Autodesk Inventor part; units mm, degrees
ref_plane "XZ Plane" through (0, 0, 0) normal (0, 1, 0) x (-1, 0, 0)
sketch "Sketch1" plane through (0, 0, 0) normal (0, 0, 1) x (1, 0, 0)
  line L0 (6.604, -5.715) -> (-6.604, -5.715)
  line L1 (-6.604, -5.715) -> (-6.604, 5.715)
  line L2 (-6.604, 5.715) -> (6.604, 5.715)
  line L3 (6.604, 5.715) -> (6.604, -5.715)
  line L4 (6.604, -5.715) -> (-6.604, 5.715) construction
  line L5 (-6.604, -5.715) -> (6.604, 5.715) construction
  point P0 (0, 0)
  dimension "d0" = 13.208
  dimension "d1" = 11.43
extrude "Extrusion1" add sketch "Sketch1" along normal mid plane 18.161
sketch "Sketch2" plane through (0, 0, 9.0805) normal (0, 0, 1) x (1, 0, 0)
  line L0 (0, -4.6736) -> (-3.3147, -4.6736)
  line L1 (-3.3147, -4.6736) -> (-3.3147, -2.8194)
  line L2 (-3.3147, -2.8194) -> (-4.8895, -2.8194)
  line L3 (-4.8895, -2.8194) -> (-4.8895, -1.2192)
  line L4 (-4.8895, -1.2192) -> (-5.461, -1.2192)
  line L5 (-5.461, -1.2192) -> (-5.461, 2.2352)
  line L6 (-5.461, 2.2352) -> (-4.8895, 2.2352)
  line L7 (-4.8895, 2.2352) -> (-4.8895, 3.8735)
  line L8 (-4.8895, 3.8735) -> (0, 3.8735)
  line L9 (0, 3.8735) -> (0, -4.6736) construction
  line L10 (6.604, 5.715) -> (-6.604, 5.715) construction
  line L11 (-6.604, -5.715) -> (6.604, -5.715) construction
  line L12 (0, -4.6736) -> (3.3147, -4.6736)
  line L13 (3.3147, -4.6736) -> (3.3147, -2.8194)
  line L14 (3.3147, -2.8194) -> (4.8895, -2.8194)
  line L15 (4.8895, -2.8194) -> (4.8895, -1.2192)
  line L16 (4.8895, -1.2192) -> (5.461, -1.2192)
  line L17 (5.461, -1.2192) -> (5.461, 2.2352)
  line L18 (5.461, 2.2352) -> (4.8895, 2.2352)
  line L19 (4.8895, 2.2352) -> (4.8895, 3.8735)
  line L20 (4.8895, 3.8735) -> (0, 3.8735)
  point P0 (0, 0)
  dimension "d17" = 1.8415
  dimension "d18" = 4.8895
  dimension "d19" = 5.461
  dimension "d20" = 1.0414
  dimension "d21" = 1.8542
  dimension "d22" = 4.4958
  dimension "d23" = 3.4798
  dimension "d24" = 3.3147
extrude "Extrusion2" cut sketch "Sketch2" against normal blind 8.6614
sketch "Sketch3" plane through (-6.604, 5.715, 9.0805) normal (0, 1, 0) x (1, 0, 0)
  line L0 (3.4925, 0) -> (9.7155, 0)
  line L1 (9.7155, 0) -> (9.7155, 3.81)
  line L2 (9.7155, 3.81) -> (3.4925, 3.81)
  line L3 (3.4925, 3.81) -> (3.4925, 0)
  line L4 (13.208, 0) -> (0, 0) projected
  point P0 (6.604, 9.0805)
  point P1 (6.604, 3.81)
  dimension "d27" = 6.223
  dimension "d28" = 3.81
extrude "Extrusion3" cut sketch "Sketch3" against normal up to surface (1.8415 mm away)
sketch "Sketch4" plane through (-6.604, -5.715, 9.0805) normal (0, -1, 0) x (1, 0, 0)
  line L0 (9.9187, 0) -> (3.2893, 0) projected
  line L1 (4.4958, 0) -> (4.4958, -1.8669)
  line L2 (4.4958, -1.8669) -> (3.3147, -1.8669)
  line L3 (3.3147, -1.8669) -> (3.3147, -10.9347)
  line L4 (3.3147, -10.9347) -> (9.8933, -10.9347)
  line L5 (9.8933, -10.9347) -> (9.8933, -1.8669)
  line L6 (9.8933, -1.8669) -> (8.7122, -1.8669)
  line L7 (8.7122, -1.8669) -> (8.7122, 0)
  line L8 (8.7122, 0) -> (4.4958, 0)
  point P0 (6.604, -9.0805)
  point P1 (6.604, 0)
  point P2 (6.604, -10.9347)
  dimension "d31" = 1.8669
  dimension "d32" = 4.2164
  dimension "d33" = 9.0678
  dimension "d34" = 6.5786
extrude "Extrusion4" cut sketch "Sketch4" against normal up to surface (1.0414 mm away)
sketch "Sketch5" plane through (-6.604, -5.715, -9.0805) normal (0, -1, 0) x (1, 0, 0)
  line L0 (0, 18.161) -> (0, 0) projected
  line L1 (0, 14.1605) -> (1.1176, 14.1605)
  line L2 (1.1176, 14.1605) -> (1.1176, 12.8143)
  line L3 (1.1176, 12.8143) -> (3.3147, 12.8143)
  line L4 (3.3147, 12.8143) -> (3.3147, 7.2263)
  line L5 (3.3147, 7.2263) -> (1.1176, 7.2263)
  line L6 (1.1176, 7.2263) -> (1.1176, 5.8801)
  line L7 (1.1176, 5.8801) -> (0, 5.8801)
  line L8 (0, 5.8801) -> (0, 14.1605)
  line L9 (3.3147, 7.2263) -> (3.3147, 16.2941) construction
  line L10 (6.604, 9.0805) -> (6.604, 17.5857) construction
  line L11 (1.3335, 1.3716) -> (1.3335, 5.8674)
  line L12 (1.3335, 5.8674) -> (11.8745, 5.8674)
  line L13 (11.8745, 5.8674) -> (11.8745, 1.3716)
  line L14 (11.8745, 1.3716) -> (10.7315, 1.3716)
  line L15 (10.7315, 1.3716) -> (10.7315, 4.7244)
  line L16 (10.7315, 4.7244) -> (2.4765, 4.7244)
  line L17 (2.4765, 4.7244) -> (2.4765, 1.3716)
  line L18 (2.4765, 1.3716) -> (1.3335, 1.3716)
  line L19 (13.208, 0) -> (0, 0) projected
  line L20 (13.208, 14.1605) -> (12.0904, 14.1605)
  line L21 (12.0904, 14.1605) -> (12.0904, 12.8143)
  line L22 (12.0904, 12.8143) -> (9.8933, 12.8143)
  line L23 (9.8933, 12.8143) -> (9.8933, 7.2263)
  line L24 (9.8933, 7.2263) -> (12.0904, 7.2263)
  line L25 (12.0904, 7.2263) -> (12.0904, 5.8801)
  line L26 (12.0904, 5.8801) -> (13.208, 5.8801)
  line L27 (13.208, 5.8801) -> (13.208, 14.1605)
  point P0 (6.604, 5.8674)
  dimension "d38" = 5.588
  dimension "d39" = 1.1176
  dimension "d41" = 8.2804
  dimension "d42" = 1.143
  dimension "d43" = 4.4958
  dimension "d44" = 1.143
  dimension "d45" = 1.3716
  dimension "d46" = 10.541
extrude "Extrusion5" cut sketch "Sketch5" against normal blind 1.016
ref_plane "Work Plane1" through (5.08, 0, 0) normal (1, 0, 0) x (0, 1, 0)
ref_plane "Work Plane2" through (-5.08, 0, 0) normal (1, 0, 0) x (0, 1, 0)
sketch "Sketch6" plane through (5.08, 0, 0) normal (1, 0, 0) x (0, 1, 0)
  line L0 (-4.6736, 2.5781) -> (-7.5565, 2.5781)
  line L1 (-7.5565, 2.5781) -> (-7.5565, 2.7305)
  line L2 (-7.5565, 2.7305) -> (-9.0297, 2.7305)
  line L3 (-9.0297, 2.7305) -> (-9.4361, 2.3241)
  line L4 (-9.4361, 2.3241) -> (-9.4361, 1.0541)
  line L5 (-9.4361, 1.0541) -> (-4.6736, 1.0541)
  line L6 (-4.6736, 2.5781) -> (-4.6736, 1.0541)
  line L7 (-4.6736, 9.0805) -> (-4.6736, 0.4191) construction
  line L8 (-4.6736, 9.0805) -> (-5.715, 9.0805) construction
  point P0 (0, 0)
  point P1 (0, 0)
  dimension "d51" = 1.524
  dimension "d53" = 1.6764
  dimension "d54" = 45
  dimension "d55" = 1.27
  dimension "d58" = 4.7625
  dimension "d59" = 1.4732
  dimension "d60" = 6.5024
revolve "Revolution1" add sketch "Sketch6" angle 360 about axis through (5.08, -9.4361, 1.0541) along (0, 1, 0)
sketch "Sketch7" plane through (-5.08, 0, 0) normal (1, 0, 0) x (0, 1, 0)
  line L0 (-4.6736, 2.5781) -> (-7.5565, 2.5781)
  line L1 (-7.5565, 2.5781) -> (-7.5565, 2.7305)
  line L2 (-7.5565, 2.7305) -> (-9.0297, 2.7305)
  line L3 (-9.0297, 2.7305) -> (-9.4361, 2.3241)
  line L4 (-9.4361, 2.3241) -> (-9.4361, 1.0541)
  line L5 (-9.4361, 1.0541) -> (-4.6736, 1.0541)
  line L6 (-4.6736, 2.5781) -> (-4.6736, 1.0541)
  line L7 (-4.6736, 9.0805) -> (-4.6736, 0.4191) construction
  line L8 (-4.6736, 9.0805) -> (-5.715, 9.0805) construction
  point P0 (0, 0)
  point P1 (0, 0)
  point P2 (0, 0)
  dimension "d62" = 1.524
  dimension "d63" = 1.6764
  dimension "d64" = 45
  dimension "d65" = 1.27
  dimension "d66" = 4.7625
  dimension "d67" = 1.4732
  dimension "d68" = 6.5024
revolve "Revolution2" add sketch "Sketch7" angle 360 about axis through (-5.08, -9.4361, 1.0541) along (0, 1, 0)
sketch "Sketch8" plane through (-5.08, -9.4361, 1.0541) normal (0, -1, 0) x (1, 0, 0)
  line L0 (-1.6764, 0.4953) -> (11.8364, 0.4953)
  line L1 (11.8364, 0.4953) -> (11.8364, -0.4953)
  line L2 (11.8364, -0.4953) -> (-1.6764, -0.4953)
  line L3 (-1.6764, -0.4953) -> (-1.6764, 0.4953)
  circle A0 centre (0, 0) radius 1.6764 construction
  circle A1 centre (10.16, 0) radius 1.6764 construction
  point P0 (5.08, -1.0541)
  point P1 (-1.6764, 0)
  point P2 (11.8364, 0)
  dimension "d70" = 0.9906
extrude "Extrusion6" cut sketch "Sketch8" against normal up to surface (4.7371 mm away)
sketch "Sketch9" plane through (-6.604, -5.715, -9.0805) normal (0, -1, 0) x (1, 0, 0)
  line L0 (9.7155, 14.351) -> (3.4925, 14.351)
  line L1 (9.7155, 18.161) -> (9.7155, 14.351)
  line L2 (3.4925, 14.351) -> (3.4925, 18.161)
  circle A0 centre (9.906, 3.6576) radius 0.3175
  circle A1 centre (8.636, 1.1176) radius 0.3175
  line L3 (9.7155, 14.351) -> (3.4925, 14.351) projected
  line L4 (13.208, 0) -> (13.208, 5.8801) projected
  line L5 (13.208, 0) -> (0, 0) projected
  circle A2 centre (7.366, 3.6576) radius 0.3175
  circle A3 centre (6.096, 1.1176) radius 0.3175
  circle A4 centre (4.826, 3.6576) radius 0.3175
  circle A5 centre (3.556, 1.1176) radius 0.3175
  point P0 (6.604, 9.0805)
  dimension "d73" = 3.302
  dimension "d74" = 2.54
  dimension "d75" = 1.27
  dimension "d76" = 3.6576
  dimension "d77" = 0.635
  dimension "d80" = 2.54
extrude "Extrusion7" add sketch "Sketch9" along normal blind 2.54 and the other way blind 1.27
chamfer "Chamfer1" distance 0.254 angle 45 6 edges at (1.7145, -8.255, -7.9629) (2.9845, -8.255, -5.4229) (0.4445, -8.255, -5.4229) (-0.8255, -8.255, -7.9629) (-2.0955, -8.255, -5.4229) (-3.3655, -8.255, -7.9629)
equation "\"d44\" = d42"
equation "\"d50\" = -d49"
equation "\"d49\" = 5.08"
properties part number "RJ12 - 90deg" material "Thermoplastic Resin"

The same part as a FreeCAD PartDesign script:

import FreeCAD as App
import Part
import Sketcher
Q = App.Units.Quantity


def edges_at(feature, points):
    """Names of the edges that pass closest to the given points."""
    edges = feature.Shape.Edges
    near = lambda p: min(range(len(edges)), key=lambda i: edges[i].distToShape(Part.Vertex(*p))[0])
    return sorted({f"Edge{near(p) + 1}" for p in points})


def add_polygon(sketch, points):
    """Adds a closed chain of lines whose ends are joined by coincident constraints."""
    first, n = sketch.GeometryCount, len(points)
    for a, b in zip(points, points[1:] + points[:1]):
        sketch.addGeometry(Part.LineSegment(App.Vector(*a, 0), App.Vector(*b, 0)), False)
    for i in range(n):
        sketch.addConstraint(Sketcher.Constraint("Coincident", first + i, 2, first + (i + 1) % n, 1))

doc = App.newDocument("Part")
body = doc.addObject("PartDesign::Body", "Body")

# Sketch on XY plane
sketch1 = body.newObject("Sketcher::SketchObject", "Sketch")
sketch1.AttachmentSupport = (doc.getObject("XY_Plane"), [""])
sketch1.MapMode = "FlatFace"
add_polygon(sketch1, [(-6.604, -5.715), (6.604, -5.715), (6.604, 5.715), (-6.604, 5.715)])  # lines 0-3
sketch1.addConstraint(Sketcher.Constraint("Horizontal", 0))
sketch1.addConstraint(Sketcher.Constraint("Vertical", 1))
sketch1.addConstraint(Sketcher.Constraint("Horizontal", 2))
sketch1.addConstraint(Sketcher.Constraint("Vertical", 3))
sketch1.addConstraint(Sketcher.Constraint("Symmetric", 0, 2, 2, 2, -1, 1))
sketch1.addConstraint(Sketcher.Constraint("DistanceX", 0, 1, 0, 2, Q("0.52 in")))
sketch1.addConstraint(Sketcher.Constraint("DistanceY", 1, 1, 1, 2, Q("0.45 in")))
pad1 = body.newObject("PartDesign::Pad", "Pad")
pad1.Profile = sketch1
pad1.Length = Q("0.715 in")
pad1.Midplane = True

# Sketch on XY plane
sketch2 = body.newObject("Sketcher::SketchObject", "Sketch001")
sketch2.AttachmentSupport = (doc.getObject("XY_Plane"), [""])
sketch2.MapMode = "FlatFace"
sketch2.AttachmentOffset = App.Placement(App.Vector(0, 0, 0.3575 * 25.4), App.Rotation())
add_polygon(sketch2, [(-3.3147, -4.6736), (3.3147, -4.6736), (3.3147, -2.8194), (4.8895, -2.8194), (4.8895, -1.2192), (5.461, -1.2192), (5.461, 2.2352), (4.8895, 2.2352), (4.8895, 3.8735), (-4.8895, 3.8735), (-4.8895, 2.2352), (-5.461, 2.2352), (-5.461, -1.2192), (-4.8895, -1.2192), (-4.8895, -2.8194), (-3.3147, -2.8194)])  # lines 0-15
sketch2.addConstraint(Sketcher.Constraint("Horizontal", 0))
sketch2.addConstraint(Sketcher.Constraint("Vertical", 1))
sketch2.addConstraint(Sketcher.Constraint("Horizontal", 2))
sketch2.addConstraint(Sketcher.Constraint("Vertical", 3))
sketch2.addConstraint(Sketcher.Constraint("Horizontal", 4))
sketch2.addConstraint(Sketcher.Constraint("Vertical", 5))
sketch2.addConstraint(Sketcher.Constraint("Horizontal", 6))
sketch2.addConstraint(Sketcher.Constraint("Vertical", 7))
sketch2.addConstraint(Sketcher.Constraint("Horizontal", 8))
sketch2.addConstraint(Sketcher.Constraint("Vertical", 9))
sketch2.addConstraint(Sketcher.Constraint("Horizontal", 10))
sketch2.addConstraint(Sketcher.Constraint("Vertical", 11))
sketch2.addConstraint(Sketcher.Constraint("Horizontal", 12))
sketch2.addConstraint(Sketcher.Constraint("Vertical", 13))
sketch2.addConstraint(Sketcher.Constraint("Horizontal", 14))
sketch2.addConstraint(Sketcher.Constraint("Vertical", 15))
sketch2.addConstraint(Sketcher.Constraint("Symmetric", 6, 2, 9, 2, -2))
sketch2.addConstraint(Sketcher.Constraint("Symmetric", 4, 2, 11, 2, -2))
sketch2.addConstraint(Sketcher.Constraint("Symmetric", 2, 2, 13, 2, -2))
sketch2.addConstraint(Sketcher.Constraint("Vertical", 3, 2, 6, 2))
sketch2.addConstraint(Sketcher.Constraint("Equal", 2, 14))
sketch2.addConstraint(Sketcher.Constraint("DistanceY", 1, 1, 1, 2, Q("0.073 in")))
sketch2.addConstraint(Sketcher.Constraint("DistanceX", -1, 1, 4, 2, Q("0.215 in")))
sketch2.addConstraint(Sketcher.Constraint("DistanceX", -1, 1, 0, 2, Q("0.1305 in")))
sketch2.addConstraint(Sketcher.Constraint("DistanceX", -1, 1, 2, 2, Q("0.1925 in")))
sketch2.addConstraint(Sketcher.Constraint("DistanceY", 3, 1, 3, 2, Q("0.063 in")))
sketch2.addConstraint(Sketcher.Constraint("DistanceY", 5, 1, 5, 2, Q("0.136 in")))
sketch2.addConstraint(Sketcher.Constraint("DistanceY", 7, 1, 7, 2, Q("0.0645 in")))
sketch2.addConstraint(Sketcher.Constraint("DistanceY", 0, 2, -1, 1, Q("0.184 in")))
pocket1 = body.newObject("PartDesign::Pocket", "Pocket")
pocket1.Profile = sketch2
pocket1.Length = Q("0.341 in")

# Sketch on XZ plane
sketch3 = body.newObject("Sketcher::SketchObject", "Sketch002")
sketch3.AttachmentSupport = (doc.getObject("XZ_Plane"), [""])
sketch3.MapMode = "FlatFace"
sketch3.AttachmentOffset = App.Placement(App.Vector(0, 0, -0.225 * 25.4), App.Rotation())
add_polygon(sketch3, [(-3.1115, 5.2705), (-3.1115, 9.0805), (3.1115, 9.0805), (3.1115, 5.2705)])  # lines 0-3
sketch3.addConstraint(Sketcher.Constraint("Vertical", 0))
sketch3.addConstraint(Sketcher.Constraint("Horizontal", 1))
sketch3.addConstraint(Sketcher.Constraint("Vertical", 2))
sketch3.addConstraint(Sketcher.Constraint("Horizontal", 3))
sketch3.addConstraint(Sketcher.Constraint("DistanceY", 0, 1, 0, 2, Q("0.15 in")))
sketch3.addConstraint(Sketcher.Constraint("DistanceX", 1, 1, 1, 2, Q("0.245 in")))
sketch3.addConstraint(Sketcher.Constraint("DistanceX", 0, 2, -1, 1, Q("0.1225 in")))
sketch3.addConstraint(Sketcher.Constraint("DistanceY", -1, 1, 0, 2, Q("0.3575 in")))
pocket2 = body.newObject("PartDesign::Pocket", "Pocket001")
pocket2.Profile = sketch3
pocket2.Length = Q("0.0725 in")
pocket2.Reversed = True

# Sketch on XZ plane
sketch4 = body.newObject("Sketcher::SketchObject", "Sketch003")
sketch4.AttachmentSupport = (doc.getObject("XZ_Plane"), [""])
sketch4.MapMode = "FlatFace"
sketch4.AttachmentOffset = App.Placement(App.Vector(0, 0, 0.225 * 25.4), App.Rotation())
add_polygon(sketch4, [(2.1082, 7.2136), (2.1082, 9.0805), (-2.1082, 9.0805), (-2.1082, 7.2136), (-3.2893, 7.2136), (-3.2893, -1.8542), (3.2893, -1.8542), (3.2893, 7.2136)])  # lines 0-7
sketch4.addConstraint(Sketcher.Constraint("Vertical", 0))
sketch4.addConstraint(Sketcher.Constraint("Horizontal", 1))
sketch4.addConstraint(Sketcher.Constraint("Vertical", 2))
sketch4.addConstraint(Sketcher.Constraint("Horizontal", 3))
sketch4.addConstraint(Sketcher.Constraint("Vertical", 4))
sketch4.addConstraint(Sketcher.Constraint("Horizontal", 5))
sketch4.addConstraint(Sketcher.Constraint("Vertical", 6))
sketch4.addConstraint(Sketcher.Constraint("Horizontal", 7))
sketch4.addConstraint(Sketcher.Constraint("Symmetric", 3, 2, 6, 2, -2))
sketch4.addConstraint(Sketcher.Constraint("Equal", 3, 7))
sketch4.addConstraint(Sketcher.Constraint("DistanceX", 1, 2, 1, 1, Q("0.166 in")))
sketch4.addConstraint(Sketcher.Constraint("DistanceX", 5, 1, 5, 2, Q("0.259 in")))
sketch4.addConstraint(Sketcher.Constraint("DistanceY", 4, 2, 4, 1, Q("0.357 in")))
sketch4.addConstraint(Sketcher.Constraint("DistanceY", 0, 1, 0, 2, Q("0.0735 in")))
sketch4.addConstraint(Sketcher.Constraint("DistanceY", -1, 1, 2, 2, Q("0.284 in")))
pocket3 = body.newObject("PartDesign::Pocket", "Pocket002")
pocket3.Profile = sketch4
pocket3.Length = Q("0.041 in")

# Sketch on XZ plane
sketch5 = body.newObject("Sketcher::SketchObject", "Sketch004")
sketch5.AttachmentSupport = (doc.getObject("XZ_Plane"), [""])
sketch5.MapMode = "FlatFace"
sketch5.AttachmentOffset = App.Placement(App.Vector(0, 0, 0.225 * 25.4), App.Rotation())
add_polygon(sketch5, [(-5.4864, 5.08), (-6.604, 5.08), (-6.604, -3.2004), (-5.4864, -3.2004), (-5.4864, -1.8542), (-3.2893, -1.8542), (-3.2893, 3.7338), (-5.4864, 3.7338)])  # lines 0-7
add_polygon(sketch5, [(-5.2705, -3.2131), (-5.2705, -7.7089), (-4.1275, -7.7089), (-4.1275, -4.3561), (4.1275, -4.3561), (4.1275, -7.7089), (5.2705, -7.7089), (5.2705, -3.2131)])  # lines 8-15
add_polygon(sketch5, [(6.604, -3.2004), (6.604, 5.08), (5.4864, 5.08), (5.4864, 3.7338), (3.2893, 3.7338), (3.2893, -1.8542), (5.4864, -1.8542), (5.4864, -3.2004)])  # lines 16-23
sketch5.addConstraint(Sketcher.Constraint("Horizontal", 0))
sketch5.addConstraint(Sketcher.Constraint("Vertical", 1))
sketch5.addConstraint(Sketcher.Constraint("Horizontal", 2))
sketch5.addConstraint(Sketcher.Constraint("Vertical", 3))
sketch5.addConstraint(Sketcher.Constraint("Horizontal", 4))
sketch5.addConstraint(Sketcher.Constraint("Vertical", 5))
sketch5.addConstraint(Sketcher.Constraint("Horizontal", 6))
sketch5.addConstraint(Sketcher.Constraint("Vertical", 7))
sketch5.addConstraint(Sketcher.Constraint("Vertical", 8))
sketch5.addConstraint(Sketcher.Constraint("Horizontal", 9))
sketch5.addConstraint(Sketcher.Constraint("Vertical", 10))
sketch5.addConstraint(Sketcher.Constraint("Horizontal", 11))
sketch5.addConstraint(Sketcher.Constraint("Vertical", 12))
sketch5.addConstraint(Sketcher.Constraint("Horizontal", 13))
sketch5.addConstraint(Sketcher.Constraint("Vertical", 14))
sketch5.addConstraint(Sketcher.Constraint("Horizontal", 15))
sketch5.addConstraint(Sketcher.Constraint("Vertical", 16))
sketch5.addConstraint(Sketcher.Constraint("Horizontal", 17))
sketch5.addConstraint(Sketcher.Constraint("Vertical", 18))
sketch5.addConstraint(Sketcher.Constraint("Horizontal", 19))
sketch5.addConstraint(Sketcher.Constraint("Vertical", 20))
sketch5.addConstraint(Sketcher.Constraint("Horizontal", 21))
sketch5.addConstraint(Sketcher.Constraint("Vertical", 22))
sketch5.addConstraint(Sketcher.Constraint("Horizontal", 23))
sketch5.addConstraint(Sketcher.Constraint("Symmetric", 9, 2, 12, 2, -2))
sketch5.addConstraint(Sketcher.Constraint("Symmetric", 0, 2, 16, 2, -2))
sketch5.addConstraint(Sketcher.Constraint("Symmetric", 6, 2, 18, 2, -2))
sketch5.addConstraint(Sketcher.Constraint("Symmetric", 4, 2, 20, 2, -2))
sketch5.addConstraint(Sketcher.Constraint("Symmetric", 2, 2, 22, 2, -2))
sketch5.addConstraint(Sketcher.Constraint("Vertical", 3, 2, 6, 2))
sketch5.addConstraint(Sketcher.Constraint("Equal", 9, 13))
sketch5.addConstraint(Sketcher.Constraint("Equal", 3, 7))
sketch5.addConstraint(Sketcher.Constraint("DistanceY", 5, 1, 5, 2, Q("0.22 in")))
sketch5.addConstraint(Sketcher.Constraint("DistanceX", 0, 2, 0, 1, Q("0.044 in")))
sketch5.addConstraint(Sketcher.Constraint("DistanceX", 9, 1, 9, 2, Q("0.045 in")))
sketch5.addConstraint(Sketcher.Constraint("DistanceX", 15, 2, 15, 1, Q("0.415 in")))
sketch5.addConstraint(Sketcher.Constraint("DistanceY", 1, 2, 1, 1, Q("0.326 in")))
sketch5.addConstraint(Sketcher.Constraint("DistanceY", 8, 2, 8, 1, Q("0.177 in")))
sketch5.addConstraint(Sketcher.Constraint("DistanceY", 11, 2, 14, 2, Q("0.045 in")))
sketch5.addConstraint(Sketcher.Constraint("DistanceY", -1, 1, 0, 2, Q("0.2 in")))
sketch5.addConstraint(Sketcher.Constraint("DistanceX", 0, 2, -1, 1, Q("0.26 in")))
sketch5.addConstraint(Sketcher.Constraint("DistanceX", 4, 1, 4, 2, Q("0.0865 in")))
sketch5.addConstraint(Sketcher.Constraint("DistanceY", 8, 2, -1, 1, Q("0.3035 in")))
pocket4 = body.newObject("PartDesign::Pocket", "Pocket003")
pocket4.Profile = sketch5
pocket4.Length = Q("0.04 in")

# Sketch on YZ plane
sketch6 = body.newObject("Sketcher::SketchObject", "Sketch005")
sketch6.AttachmentSupport = (doc.getObject("YZ_Plane"), [""])
sketch6.MapMode = "FlatFace"
sketch6.AttachmentOffset = App.Placement(App.Vector(0, 0, 0.2 * 25.4), App.Rotation())
add_polygon(sketch6, [(-4.6736, 1.0541), (-4.6736, 2.5781), (-7.5565, 2.5781), (-7.5565, 2.7305), (-9.0297, 2.7305), (-9.4361, 2.3241), (-9.4361, 1.0541)])  # lines 0-6
sketch6.addGeometry(Part.LineSegment(App.Vector(-9.4361, 1.0541, 0), App.Vector(-4.6736, 1.0541, 0)), True)  # axis
sketch6.addConstraint(Sketcher.Constraint("Vertical", 0))
sketch6.addConstraint(Sketcher.Constraint("Horizontal", 1))
sketch6.addConstraint(Sketcher.Constraint("Vertical", 2))
sketch6.addConstraint(Sketcher.Constraint("Horizontal", 3))
sketch6.addConstraint(Sketcher.Constraint("Vertical", 5))
sketch6.addConstraint(Sketcher.Constraint("Horizontal", 6))
sketch6.addConstraint(Sketcher.Constraint("Horizontal", 7))
sketch6.addConstraint(Sketcher.Constraint("Coincident", 7, 1, 5, 2))
sketch6.addConstraint(Sketcher.Constraint("Vertical", 0, 2, 7, 2))
sketch6.addConstraint(Sketcher.Constraint("DistanceY", 0, 1, 0, 2, Q("0.06 in")))
sketch6.addConstraint(Sketcher.Constraint("DistanceY", 5, 2, 5, 1, Q("0.05 in")))
sketch6.addConstraint(Sketcher.Constraint("DistanceX", 3, 2, 3, 1, Q("0.058 in")))
sketch6.addConstraint(Sketcher.Constraint("DistanceX", 6, 1, 6, 2, Q("0.1875 in")))
sketch6.addConstraint(Sketcher.Constraint("Angle", 4, Q("-135 deg")))
sketch6.addConstraint(Sketcher.Constraint("DistanceY", 5, 2, 3, 2, Q("0.066 in")))
sketch6.addConstraint(Sketcher.Constraint("DistanceX", 0, 2, -1, 1, Q("0.184 in")))
sketch6.addConstraint(Sketcher.Constraint("DistanceY", -1, 1, 0, 2, Q("0.1015 in")))
revolution = body.newObject("PartDesign::Revolution", "Revolution")
revolution.Profile = sketch6
revolution.ReferenceAxis = (sketch6, ["Axis0"])
revolution.Angle = 360

# Sketch on YZ plane
sketch7 = body.newObject("Sketcher::SketchObject", "Sketch006")
sketch7.AttachmentSupport = (doc.getObject("YZ_Plane"), [""])
sketch7.MapMode = "FlatFace"
sketch7.AttachmentOffset = App.Placement(App.Vector(0, 0, -0.2 * 25.4), App.Rotation())
add_polygon(sketch7, [(-4.6736, 1.0541), (-4.6736, 2.5781), (-7.5565, 2.5781), (-7.5565, 2.7305), (-9.0297, 2.7305), (-9.4361, 2.3241), (-9.4361, 1.0541)])  # lines 0-6
sketch7.addGeometry(Part.LineSegment(App.Vector(-9.4361, 1.0541, 0), App.Vector(-4.6736, 1.0541, 0)), True)  # axis
sketch7.addConstraint(Sketcher.Constraint("Vertical", 0))
sketch7.addConstraint(Sketcher.Constraint("Horizontal", 1))
sketch7.addConstraint(Sketcher.Constraint("Vertical", 2))
sketch7.addConstraint(Sketcher.Constraint("Horizontal", 3))
sketch7.addConstraint(Sketcher.Constraint("Vertical", 5))
sketch7.addConstraint(Sketcher.Constraint("Horizontal", 6))
sketch7.addConstraint(Sketcher.Constraint("Horizontal", 7))
sketch7.addConstraint(Sketcher.Constraint("Coincident", 7, 1, 5, 2))
sketch7.addConstraint(Sketcher.Constraint("Vertical", 0, 2, 7, 2))
sketch7.addConstraint(Sketcher.Constraint("DistanceY", 0, 1, 0, 2, Q("0.06 in")))
sketch7.addConstraint(Sketcher.Constraint("DistanceY", 5, 2, 5, 1, Q("0.05 in")))
sketch7.addConstraint(Sketcher.Constraint("DistanceX", 3, 2, 3, 1, Q("0.058 in")))
sketch7.addConstraint(Sketcher.Constraint("DistanceX", 6, 1, 6, 2, Q("0.1875 in")))
sketch7.addConstraint(Sketcher.Constraint("Angle", 4, Q("-135 deg")))
sketch7.addConstraint(Sketcher.Constraint("DistanceY", 5, 2, 3, 2, Q("0.066 in")))
sketch7.addConstraint(Sketcher.Constraint("DistanceX", 0, 2, -1, 1, Q("0.184 in")))
sketch7.addConstraint(Sketcher.Constraint("DistanceY", -1, 1, 0, 2, Q("0.1015 in")))
revolution2 = body.newObject("PartDesign::Revolution", "Revolution001")
revolution2.Profile = sketch7
revolution2.ReferenceAxis = (sketch7, ["Axis0"])
revolution2.Angle = 360

# Sketch on XZ plane
sketch8 = body.newObject("Sketcher::SketchObject", "Sketch007")
sketch8.AttachmentSupport = (doc.getObject("XZ_Plane"), [""])
sketch8.MapMode = "FlatFace"
sketch8.AttachmentOffset = App.Placement(App.Vector(0, 0, 0.3715 * 25.4), App.Rotation())
add_polygon(sketch8, [(6.7564, 1.5494), (-6.7564, 1.5494), (-6.7564, 0.5588), (6.7564, 0.5588)])  # lines 0-3
sketch8.addConstraint(Sketcher.Constraint("Horizontal", 0))
sketch8.addConstraint(Sketcher.Constraint("Vertical", 1))
sketch8.addConstraint(Sketcher.Constraint("Horizontal", 2))
sketch8.addConstraint(Sketcher.Constraint("Vertical", 3))
sketch8.addConstraint(Sketcher.Constraint("DistanceY", 1, 2, 1, 1, Q("0.039 in")))
sketch8.addConstraint(Sketcher.Constraint("DistanceX", 0, 2, 0, 1, Q("0.532 in")))
sketch8.addConstraint(Sketcher.Constraint("DistanceX", 0, 2, -1, 1, Q("0.266 in")))
sketch8.addConstraint(Sketcher.Constraint("DistanceY", -1, 1, 0, 2, Q("0.061 in")))
pocket5 = body.newObject("PartDesign::Pocket", "Pocket004")
pocket5.Profile = sketch8
pocket5.Length = Q("0.1865 in")

# Sketch on XZ plane
sketch9 = body.newObject("Sketcher::SketchObject", "Sketch008")
sketch9.AttachmentSupport = (doc.getObject("XZ_Plane"), [""])
sketch9.MapMode = "FlatFace"
sketch9.AttachmentOffset = App.Placement(App.Vector(0, 0, 0.225 * 25.4), App.Rotation())
sketch9.addGeometry(Part.Circle(App.Vector(3.302, -5.4229, 0), App.Vector(0, 0, 1), 0.3175), False)
sketch9.addGeometry(Part.Circle(App.Vector(2.032, -7.9629, 0), App.Vector(0, 0, 1), 0.3175), False)
sketch9.addGeometry(Part.Circle(App.Vector(0.762, -5.4229, 0), App.Vector(0, 0, 1), 0.3175), False)
sketch9.addGeometry(Part.Circle(App.Vector(-0.508, -7.9629, 0), App.Vector(0, 0, 1), 0.3175), False)
sketch9.addGeometry(Part.Circle(App.Vector(-1.778, -5.4229, 0), App.Vector(0, 0, 1), 0.3175), False)
sketch9.addGeometry(Part.Circle(App.Vector(-3.048, -7.9629, 0), App.Vector(0, 0, 1), 0.3175), False)
sketch9.addConstraint(Sketcher.Constraint("Equal", 0, 1))
sketch9.addConstraint(Sketcher.Constraint("Equal", 1, 2))
sketch9.addConstraint(Sketcher.Constraint("Equal", 2, 3))
sketch9.addConstraint(Sketcher.Constraint("Equal", 3, 4))
sketch9.addConstraint(Sketcher.Constraint("Equal", 4, 5))
sketch9.addConstraint(Sketcher.Constraint("Horizontal", 0, 3, 2, 3))
sketch9.addConstraint(Sketcher.Constraint("Horizontal", 1, 3, 3, 3))
sketch9.addConstraint(Sketcher.Constraint("Horizontal", 2, 3, 4, 3))
sketch9.addConstraint(Sketcher.Constraint("Horizontal", 3, 3, 5, 3))
sketch9.addConstraint(Sketcher.Constraint("Diameter", 0, Q("0.025 in")))
sketch9.addConstraint(Sketcher.Constraint("DistanceY", 1, 3, 0, 3, Q("0.1 in")))
sketch9.addConstraint(Sketcher.Constraint("DistanceX", 2, 3, 0, 3, Q("0.1 in")))
sketch9.addConstraint(Sketcher.Constraint("DistanceX", 3, 3, 1, 3, Q("0.1 in")))
sketch9.addConstraint(Sketcher.Constraint("DistanceX", 4, 3, 2, 3, Q("0.1 in")))
sketch9.addConstraint(Sketcher.Constraint("DistanceX", 5, 3, 3, 3, Q("0.1 in")))
sketch9.addConstraint(Sketcher.Constraint("DistanceX", -1, 1, 0, 3, Q("0.13 in")))
sketch9.addConstraint(Sketcher.Constraint("DistanceX", 1, 3, 0, 3, Q("0.05 in")))
sketch9.addConstraint(Sketcher.Constraint("DistanceY", 0, 3, -1, 1, Q("0.2135 in")))
pad2 = body.newObject("PartDesign::Pad", "Pad001")
pad2.Profile = sketch9
pad2.Type = "TwoLengths"
pad2.Length = Q("0.1 in")
pad2.Length2 = Q("0.05 in")
doc.recompute()

chamfer = body.newObject("PartDesign::Chamfer", "Chamfer")
chamfer.Base = (pad2, edges_at(pad2, [
    (1.714, -8.255, -7.963),
    (2.985, -8.255, -5.423),
    (0.445, -8.255, -5.423),
    (-0.826, -8.255, -7.963),
    (-2.095, -8.255, -5.423),
    (-3.365, -8.255, -7.963),
]))
chamfer.Size = Q("0.01 in")

doc.recompute()
